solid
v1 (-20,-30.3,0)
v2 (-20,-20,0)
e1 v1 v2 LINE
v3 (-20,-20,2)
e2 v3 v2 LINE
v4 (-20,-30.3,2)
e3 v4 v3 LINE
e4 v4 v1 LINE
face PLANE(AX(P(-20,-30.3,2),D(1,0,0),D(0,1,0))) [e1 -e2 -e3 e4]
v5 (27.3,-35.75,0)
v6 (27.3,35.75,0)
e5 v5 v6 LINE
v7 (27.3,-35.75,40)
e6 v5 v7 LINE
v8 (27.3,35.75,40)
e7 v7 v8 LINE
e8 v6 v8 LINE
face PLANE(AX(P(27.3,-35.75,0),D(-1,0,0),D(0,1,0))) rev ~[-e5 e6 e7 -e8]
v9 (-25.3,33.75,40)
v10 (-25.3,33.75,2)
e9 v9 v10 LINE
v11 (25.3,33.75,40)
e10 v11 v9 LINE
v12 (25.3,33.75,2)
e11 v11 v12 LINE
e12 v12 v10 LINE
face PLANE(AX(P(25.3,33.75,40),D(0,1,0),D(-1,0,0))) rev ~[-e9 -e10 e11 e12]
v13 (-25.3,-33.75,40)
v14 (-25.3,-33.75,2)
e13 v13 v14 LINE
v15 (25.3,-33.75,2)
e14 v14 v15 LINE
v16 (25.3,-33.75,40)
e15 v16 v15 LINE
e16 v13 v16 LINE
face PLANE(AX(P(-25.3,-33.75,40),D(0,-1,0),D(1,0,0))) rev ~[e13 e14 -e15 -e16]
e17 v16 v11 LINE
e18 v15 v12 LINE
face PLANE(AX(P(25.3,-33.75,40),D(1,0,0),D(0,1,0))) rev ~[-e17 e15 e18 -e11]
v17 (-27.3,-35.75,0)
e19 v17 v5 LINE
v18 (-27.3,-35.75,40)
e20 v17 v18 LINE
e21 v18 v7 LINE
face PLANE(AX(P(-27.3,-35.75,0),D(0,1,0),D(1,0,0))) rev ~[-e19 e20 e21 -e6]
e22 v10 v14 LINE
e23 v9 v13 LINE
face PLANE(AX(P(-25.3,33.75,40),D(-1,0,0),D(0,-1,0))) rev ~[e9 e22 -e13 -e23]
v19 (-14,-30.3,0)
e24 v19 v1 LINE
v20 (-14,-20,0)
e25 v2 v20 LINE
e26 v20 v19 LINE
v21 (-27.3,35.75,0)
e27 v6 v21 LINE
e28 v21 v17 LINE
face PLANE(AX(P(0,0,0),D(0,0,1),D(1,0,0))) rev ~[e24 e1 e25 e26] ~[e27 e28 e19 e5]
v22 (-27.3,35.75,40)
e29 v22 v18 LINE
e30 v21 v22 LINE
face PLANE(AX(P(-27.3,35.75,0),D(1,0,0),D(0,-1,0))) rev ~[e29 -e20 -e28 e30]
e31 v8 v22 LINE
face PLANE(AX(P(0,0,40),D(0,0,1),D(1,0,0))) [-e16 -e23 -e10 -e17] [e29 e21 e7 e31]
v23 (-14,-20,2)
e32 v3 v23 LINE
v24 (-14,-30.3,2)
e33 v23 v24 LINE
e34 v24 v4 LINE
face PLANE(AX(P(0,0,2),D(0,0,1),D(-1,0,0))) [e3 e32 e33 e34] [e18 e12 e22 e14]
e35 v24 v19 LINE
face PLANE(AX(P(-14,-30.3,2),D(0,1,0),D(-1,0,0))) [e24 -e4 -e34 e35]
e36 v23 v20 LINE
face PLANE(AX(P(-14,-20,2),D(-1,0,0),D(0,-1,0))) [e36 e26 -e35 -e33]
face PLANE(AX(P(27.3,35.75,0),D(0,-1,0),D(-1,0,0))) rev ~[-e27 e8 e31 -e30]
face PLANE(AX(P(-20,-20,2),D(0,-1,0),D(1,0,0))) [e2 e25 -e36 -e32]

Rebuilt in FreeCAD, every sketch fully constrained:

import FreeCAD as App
import Part
import Sketcher

V = App.Vector
Q = App.Units.Quantity


def add_polygon(sketch, points):
    """Adds a closed chain of lines whose ends are joined by coincident constraints."""
    first, n = sketch.GeometryCount, len(points)
    for a, b in zip(points, points[1:] + points[:1]):
        sketch.addGeometry(Part.LineSegment(App.Vector(*a, 0), App.Vector(*b, 0)), False)
    for i in range(n):
        sketch.addConstraint(Sketcher.Constraint("Coincident", first + i, 2, first + (i + 1) % n, 1))

doc = App.newDocument("Part")
body = doc.addObject("PartDesign::Body", "Body")

sketch1 = body.newObject("Sketcher::SketchObject", "Sketch")
sketch1.AttachmentSupport = (doc.getObject("XY_Plane"), [""])
sketch1.MapMode = "FlatFace"
add_polygon(sketch1, [(27.3, -35.75), (27.3, 35.75), (-27.3, 35.75), (-27.3, -35.75)])
sketch1.addConstraint([
    Sketcher.Constraint("Vertical", 0),
    Sketcher.Constraint("Horizontal", 1),
    Sketcher.Constraint("Vertical", 2),
    Sketcher.Constraint("Horizontal", 3),
    Sketcher.Constraint("Symmetric", 0, 2, 2, 2, -1, 1),
    Sketcher.Constraint("DistanceX", 1, 2, 1, 1, Q("54.6 mm")),
    Sketcher.Constraint("DistanceY", 0, 1, 0, 2, Q("71.5 mm")),
])
pad1 = body.newObject("PartDesign::Pad", "Pad")
pad1.Profile = sketch1
pad1.Length = 40

sketch2 = body.newObject("Sketcher::SketchObject", "Sketch001")
sketch2.AttachmentSupport = (doc.getObject("XY_Plane"), [""])
sketch2.MapMode = "FlatFace"
sketch2.AttachmentOffset = App.Placement(V(0, 0, 40), App.Rotation())
add_polygon(sketch2, [(25.3, -33.75), (25.3, 33.75), (-25.3, 33.75), (-25.3, -33.75)])
sketch2.addConstraint([
    Sketcher.Constraint("Vertical", 0),
    Sketcher.Constraint("Horizontal", 1),
    Sketcher.Constraint("Vertical", 2),
    Sketcher.Constraint("Horizontal", 3),
    Sketcher.Constraint("Symmetric", 0, 2, 2, 2, -1, 1),
    Sketcher.Constraint("DistanceX", 1, 2, 1, 1, Q("50.6 mm")),
    Sketcher.Constraint("DistanceY", 0, 1, 0, 2, Q("67.5 mm")),
])
pocket1 = body.newObject("PartDesign::Pocket", "Pocket")
pocket1.Profile = sketch2
pocket1.Length = 38

sketch3 = body.newObject("Sketcher::SketchObject", "Sketch002")
sketch3.AttachmentSupport = (doc.getObject("XY_Plane"), [""])
sketch3.MapMode = "FlatFace"
sketch3.AttachmentOffset = App.Placement(V(0, 0, 2), App.Rotation())
add_polygon(sketch3, [(-14, -20), (-20, -20), (-20, -30.3), (-14, -30.3)])
sketch3.addConstraint([
    Sketcher.Constraint("Horizontal", 0),
    Sketcher.Constraint("Vertical", 1),
    Sketcher.Constraint("Horizontal", 2),
    Sketcher.Constraint("Vertical", 3),
    Sketcher.Constraint("DistanceX", 0, 2, 0, 1, Q("6 mm")),
    Sketcher.Constraint("DistanceY", 1, 2, 1, 1, Q("10.3 mm")),
    Sketcher.Constraint("DistanceX", 0, 2, -1, 1, Q("20 mm")),
    Sketcher.Constraint("DistanceY", 0, 2, -1, 1, Q("20 mm")),
])
pocket2 = body.newObject("PartDesign::Pocket", "Pocket001")
pocket2.Profile = sketch3
pocket2.Length = 2

doc.recompute()
